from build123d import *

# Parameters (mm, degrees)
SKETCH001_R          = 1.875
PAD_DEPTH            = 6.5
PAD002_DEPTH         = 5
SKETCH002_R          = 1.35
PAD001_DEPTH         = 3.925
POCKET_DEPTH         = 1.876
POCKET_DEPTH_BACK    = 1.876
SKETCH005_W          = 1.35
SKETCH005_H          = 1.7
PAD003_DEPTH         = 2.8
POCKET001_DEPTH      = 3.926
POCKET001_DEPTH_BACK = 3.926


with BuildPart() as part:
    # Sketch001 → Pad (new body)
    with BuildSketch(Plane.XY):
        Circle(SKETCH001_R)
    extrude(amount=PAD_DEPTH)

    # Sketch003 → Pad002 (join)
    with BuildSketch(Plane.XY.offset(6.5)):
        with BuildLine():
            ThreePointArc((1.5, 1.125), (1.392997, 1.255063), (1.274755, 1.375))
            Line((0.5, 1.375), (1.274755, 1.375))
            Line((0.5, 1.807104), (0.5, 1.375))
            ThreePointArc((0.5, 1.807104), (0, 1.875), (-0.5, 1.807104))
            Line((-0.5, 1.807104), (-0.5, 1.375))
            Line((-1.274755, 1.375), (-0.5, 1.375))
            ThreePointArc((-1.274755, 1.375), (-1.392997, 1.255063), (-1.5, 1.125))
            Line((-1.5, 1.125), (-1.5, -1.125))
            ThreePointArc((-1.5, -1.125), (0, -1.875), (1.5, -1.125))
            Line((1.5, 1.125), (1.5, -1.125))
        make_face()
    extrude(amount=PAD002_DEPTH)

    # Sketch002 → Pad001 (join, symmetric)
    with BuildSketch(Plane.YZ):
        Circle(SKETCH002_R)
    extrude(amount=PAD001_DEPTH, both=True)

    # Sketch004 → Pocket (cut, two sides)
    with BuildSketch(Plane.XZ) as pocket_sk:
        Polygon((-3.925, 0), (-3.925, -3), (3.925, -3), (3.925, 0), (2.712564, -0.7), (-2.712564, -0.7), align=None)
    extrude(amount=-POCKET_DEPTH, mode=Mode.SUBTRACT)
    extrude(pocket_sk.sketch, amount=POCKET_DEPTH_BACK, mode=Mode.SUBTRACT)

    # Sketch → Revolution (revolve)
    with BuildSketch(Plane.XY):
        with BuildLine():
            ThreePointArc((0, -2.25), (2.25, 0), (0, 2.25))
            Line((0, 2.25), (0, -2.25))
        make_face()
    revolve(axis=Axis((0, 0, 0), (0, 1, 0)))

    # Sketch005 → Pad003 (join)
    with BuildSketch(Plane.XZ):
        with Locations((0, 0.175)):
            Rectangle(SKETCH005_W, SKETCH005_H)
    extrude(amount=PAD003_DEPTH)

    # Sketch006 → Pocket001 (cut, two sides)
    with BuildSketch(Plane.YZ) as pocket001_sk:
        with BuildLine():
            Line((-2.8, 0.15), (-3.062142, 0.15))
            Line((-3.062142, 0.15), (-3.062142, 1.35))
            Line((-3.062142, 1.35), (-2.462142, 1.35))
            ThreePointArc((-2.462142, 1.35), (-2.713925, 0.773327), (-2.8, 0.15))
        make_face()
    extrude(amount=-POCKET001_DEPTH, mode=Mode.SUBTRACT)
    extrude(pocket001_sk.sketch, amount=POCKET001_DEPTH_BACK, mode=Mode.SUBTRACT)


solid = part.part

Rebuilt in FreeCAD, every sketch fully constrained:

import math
import FreeCAD as App
import Part
import Sketcher
Q = App.Units.Quantity


def add_polygon(sketch, points):
    """Adds a closed chain of lines whose ends are joined by coincident constraints."""
    first, n = sketch.GeometryCount, len(points)
    for a, b in zip(points, points[1:] + points[:1]):
        sketch.addGeometry(Part.LineSegment(App.Vector(*a, 0), App.Vector(*b, 0)), False)
    for i in range(n):
        sketch.addConstraint(Sketcher.Constraint("Coincident", first + i, 2, first + (i + 1) % n, 1))

doc = App.newDocument("Part")
body = doc.addObject("PartDesign::Body", "Body")

# Sketch on XY plane
sketch1 = doc.addObject("Sketcher::SketchObject", "Sketch")
body.addObject(sketch1)
sketch1.AttachmentSupport = (doc.XY_Plane, [""])
sketch1.MapMode = "FlatFace"
sketch1.addGeometry(Part.Circle(App.Vector(0, 0, 0), App.Vector(0, 0, 1), 1.875), False)
sketch1.addConstraint(Sketcher.Constraint("Coincident", 0, 3, -1, 1))
sketch1.addConstraint(Sketcher.Constraint("Diameter", 0, 3.75))
pad1 = doc.addObject("PartDesign::Pad", "Pad")
body.addObject(pad1)
pad1.Profile = sketch1
pad1.Length = 6.5

# Sketch on XY plane
sketch2 = doc.addObject("Sketcher::SketchObject", "Sketch001")
body.addObject(sketch2)
sketch2.AttachmentSupport = (doc.XY_Plane, [""])
sketch2.MapMode = "FlatFace"
sketch2.AttachmentOffset = App.Placement(App.Vector(0, 0, 6.5), App.Rotation())
sketch2.addGeometry(Part.ArcOfCircle(Part.Circle(App.Vector(-0.000068, -0.000061, 0), App.Vector(0, 0, 1), 1.875091), math.radians(36.870134), math.radians(47.166305)), False)
sketch2.addGeometry(Part.LineSegment(App.Vector(1.274755, 1.375, 0), App.Vector(0.5, 1.375, 0)), False)
sketch2.addGeometry(Part.LineSegment(App.Vector(0.5, 1.375, 0), App.Vector(0.5, 1.807104, 0)), False)
sketch2.addGeometry(Part.ArcOfCircle(Part.Circle(App.Vector(0, 0.000001, 0), App.Vector(0, 0, 1), 1.874999), math.radians(74.533982), math.radians(105.466018)), False)
sketch2.addGeometry(Part.LineSegment(App.Vector(-0.5, 1.807104, 0), App.Vector(-0.5, 1.375, 0)), False)
sketch2.addGeometry(Part.LineSegment(App.Vector(-0.5, 1.375, 0), App.Vector(-1.274755, 1.375, 0)), False)
sketch2.addGeometry(Part.ArcOfCircle(Part.Circle(App.Vector(0.000068, -0.000061, 0), App.Vector(0, 0, 1), 1.875091), math.radians(132.833695), math.radians(143.129866)), False)
sketch2.addGeometry(Part.LineSegment(App.Vector(-1.5, 1.125, 0), App.Vector(-1.5, -1.125, 0)), False)
sketch2.addGeometry(Part.ArcOfCircle(Part.Circle(App.Vector(0, 0, 0), App.Vector(0, 0, 1), 1.875), math.radians(-143.130102), math.radians(-36.869898)), False)
sketch2.addGeometry(Part.LineSegment(App.Vector(1.5, -1.125, 0), App.Vector(1.5, 1.125, 0)), False)
sketch2.addConstraint(Sketcher.Constraint("Coincident", 0, 2, 1, 1))
sketch2.addConstraint(Sketcher.Constraint("Coincident", 1, 2, 2, 1))
sketch2.addConstraint(Sketcher.Constraint("Coincident", 2, 2, 3, 1))
sketch2.addConstraint(Sketcher.Constraint("Coincident", 3, 2, 4, 1))
sketch2.addConstraint(Sketcher.Constraint("Coincident", 4, 2, 5, 1))
sketch2.addConstraint(Sketcher.Constraint("Coincident", 5, 2, 6, 1))
sketch2.addConstraint(Sketcher.Constraint("Coincident", 6, 2, 7, 1))
sketch2.addConstraint(Sketcher.Constraint("Coincident", 7, 2, 8, 1))
sketch2.addConstraint(Sketcher.Constraint("Coincident", 8, 2, 9, 1))
sketch2.addConstraint(Sketcher.Constraint("Coincident", 9, 2, 0, 1))
sketch2.addConstraint(Sketcher.Constraint("Horizontal", 1))
sketch2.addConstraint(Sketcher.Constraint("Vertical", 2))
sketch2.addConstraint(Sketcher.Constraint("Vertical", 4))
sketch2.addConstraint(Sketcher.Constraint("Horizontal", 5))
sketch2.addConstraint(Sketcher.Constraint("Vertical", 7))
sketch2.addConstraint(Sketcher.Constraint("Vertical", 9))
sketch2.addConstraint(Sketcher.Constraint("Coincident", 3, 3, -1, 1))
sketch2.addConstraint(Sketcher.Constraint("Coincident", 8, 3, -1, 1))
sketch2.addConstraint(Sketcher.Constraint("Equal", 0, 6))
sketch2.addConstraint(Sketcher.Constraint("Equal", 3, 8))
sketch2.addConstraint(Sketcher.Constraint("Symmetric", 6, 2, 8, 2, -1, 1))
sketch2.addConstraint(Sketcher.Constraint("Symmetric", 0, 3, 6, 3, -2))
sketch2.addConstraint(Sketcher.Constraint("Symmetric", 1, 2, 4, 2, -2))
sketch2.addConstraint(Sketcher.Constraint("Radius", 3, 1.874999))
sketch2.addConstraint(Sketcher.Constraint("DistanceX", 3, 2, 2, 2, 1.0))
sketch2.addConstraint(Sketcher.Constraint("DistanceX", 6, 2, 4, 2, 1.0))
sketch2.addConstraint(Sketcher.Constraint("DistanceY", 8, 2, 0, 2, 2.5))
sketch2.addConstraint(Sketcher.Constraint("Radius", 0, 1.875091))
sketch2.addConstraint(Sketcher.Constraint("DistanceX", 1, 2, 1, 1, 0.774755))
pad2 = doc.addObject("PartDesign::Pad", "Pad001")
body.addObject(pad2)
pad2.Profile = sketch2
pad2.Length = 5

# Sketch on YZ plane
sketch3 = doc.addObject("Sketcher::SketchObject", "Sketch002")
body.addObject(sketch3)
sketch3.AttachmentSupport = (doc.YZ_Plane, [""])
sketch3.MapMode = "FlatFace"
sketch3.addGeometry(Part.Circle(App.Vector(0, 0, 0), App.Vector(0, 0, 1), 1.35), False)
sketch3.addConstraint(Sketcher.Constraint("Coincident", 0, 3, -1, 1))
sketch3.addConstraint(Sketcher.Constraint("Diameter", 0, 2.7))
pad3 = doc.addObject("PartDesign::Pad", "Pad002")
body.addObject(pad3)
pad3.Profile = sketch3
pad3.Length = 7.85
pad3.Midplane = True

# Sketch on XZ plane
sketch4 = doc.addObject("Sketcher::SketchObject", "Sketch003")
body.addObject(sketch4)
sketch4.AttachmentSupport = (doc.XZ_Plane, [""])
sketch4.MapMode = "FlatFace"
add_polygon(sketch4, [(-3.925, 0), (-3.925, -3), (3.925, -3), (3.925, 0), (2.712564, -0.7), (-2.712564, -0.7)])  # lines 0-5
sketch4.addConstraint(Sketcher.Constraint("Vertical", 0))
sketch4.addConstraint(Sketcher.Constraint("Horizontal", 1))
sketch4.addConstraint(Sketcher.Constraint("Vertical", 2))
sketch4.addConstraint(Sketcher.Constraint("Horizontal", 4))
sketch4.addConstraint(Sketcher.Constraint("Symmetric", 2, 2, 5, 2, -1, 1))
sketch4.addConstraint(Sketcher.Constraint("PointOnObject", 2, 2, -1))
sketch4.addConstraint(Sketcher.Constraint("Equal", 3, 5))
sketch4.addConstraint(Sketcher.Constraint("DistanceY", 0, 2, 0, 1, 3.0))
sketch4.addConstraint(Sketcher.Constraint("Angle", 3, Q("-150.000009 deg")))
sketch4.addConstraint(Sketcher.Constraint("Distance", 3, 1.4))
sketch4.addConstraint(Sketcher.Constraint("DistanceX", 1, 1, 1, 2, 7.85))
pocket1 = doc.addObject("PartDesign::Pocket", "Pocket")
body.addObject(pocket1)
pocket1.Profile = sketch4
pocket1.Type = "ThroughAll"
pocket1.Midplane = True

# Sketch on XY plane
sketch5 = doc.addObject("Sketcher::SketchObject", "Sketch004")
body.addObject(sketch5)
sketch5.AttachmentSupport = (doc.XY_Plane, [""])
sketch5.MapMode = "FlatFace"
sketch5.addGeometry(Part.ArcOfCircle(Part.Circle(App.Vector(0, 0, 0), App.Vector(0, 0, 1), 2.25), math.radians(-90), math.radians(90)), False)
sketch5.addGeometry(Part.LineSegment(App.Vector(0, 2.25, 0), App.Vector(0, -2.25, 0)), False)
sketch5.addConstraint(Sketcher.Constraint("Coincident", 0, 1, 1, 2))
sketch5.addConstraint(Sketcher.Constraint("Coincident", 1, 1, 0, 2))
sketch5.addConstraint(Sketcher.Constraint("Vertical", 1))
sketch5.addConstraint(Sketcher.Constraint("Coincident", 0, 3, -1, 1))
sketch5.addConstraint(Sketcher.Constraint("PointOnObject", 0, 1, -2))
sketch5.addConstraint(Sketcher.Constraint("Radius", 0, 2.25))
revolution = doc.addObject("PartDesign::Revolution", "Revolution")
body.addObject(revolution)
revolution.Profile = sketch5
revolution.ReferenceAxis = (sketch5, ["V_Axis"])
revolution.Angle = 360

# Sketch on XZ plane
sketch6 = doc.addObject("Sketcher::SketchObject", "Sketch005")
body.addObject(sketch6)
sketch6.AttachmentSupport = (doc.XZ_Plane, [""])
sketch6.MapMode = "FlatFace"
add_polygon(sketch6, [(-0.675, 1.025), (-0.675, -0.675), (0.675, -0.675), (0.675, 1.025)])  # lines 0-3
sketch6.addConstraint(Sketcher.Constraint("Vertical", 0))
sketch6.addConstraint(Sketcher.Constraint("Horizontal", 1))
sketch6.addConstraint(Sketcher.Constraint("Vertical", 2))
sketch6.addConstraint(Sketcher.Constraint("Horizontal", 3))
sketch6.addConstraint(Sketcher.Constraint("DistanceY", 0, 2, 0, 1, 1.7))
sketch6.addConstraint(Sketcher.Constraint("DistanceX", 1, 1, 1, 2, 1.35))
sketch6.addConstraint(Sketcher.Constraint("DistanceX", 0, 2, -1, 1, 0.675))
sketch6.addConstraint(Sketcher.Constraint("DistanceY", 0, 2, -1, 1, 0.675))
pad4 = doc.addObject("PartDesign::Pad", "Pad003")
body.addObject(pad4)
pad4.Profile = sketch6
pad4.Length = 2.8

# Sketch on YZ plane
sketch7 = doc.addObject("Sketcher::SketchObject", "Sketch006")
body.addObject(sketch7)
sketch7.AttachmentSupport = (doc.YZ_Plane, [""])
sketch7.MapMode = "FlatFace"
sketch7.addGeometry(Part.LineSegment(App.Vector(-3.062142, 0.15, 0), App.Vector(-2.8, 0.15, 0)), False)
sketch7.addGeometry(Part.ArcOfCircle(Part.Circle(App.Vector(-0.499999, 0.15, 0), App.Vector(0, 0, 1), 2.300001), math.radians(148.551041), math.radians(180.000006)), False)
sketch7.addGeometry(Part.LineSegment(App.Vector(-2.462142, 1.35, 0), App.Vector(-3.062142, 1.35, 0)), False)
sketch7.addGeometry(Part.LineSegment(App.Vector(-3.062142, 1.35, 0), App.Vector(-3.062142, 0.15, 0)), False)
sketch7.addConstraint(Sketcher.Constraint("Coincident", 0, 2, 1, 2))
sketch7.addConstraint(Sketcher.Constraint("Coincident", 1, 1, 2, 1))
sketch7.addConstraint(Sketcher.Constraint("Coincident", 2, 2, 3, 1))
sketch7.addConstraint(Sketcher.Constraint("Coincident", 3, 2, 0, 1))
sketch7.addConstraint(Sketcher.Constraint("Horizontal", 0))
sketch7.addConstraint(Sketcher.Constraint("Horizontal", 2))
sketch7.addConstraint(Sketcher.Constraint("Vertical", 3))
sketch7.addConstraint(Sketcher.Constraint("Horizontal", 1, 3, 0, 2))
sketch7.addConstraint(Sketcher.Constraint("Radius", 1, 2.300001))
sketch7.addConstraint(Sketcher.Constraint("DistanceX", 2, 2, 2, 1, 0.6))
sketch7.addConstraint(Sketcher.Constraint("DistanceY", 3, 2, 3, 1, 1.2))
sketch7.addConstraint(Sketcher.Constraint("DistanceX", 1, 3, -1, 1, 0.499999))
sketch7.addConstraint(Sketcher.Constraint("DistanceY", -1, 1, 1, 3, 0.15))
pocket2 = doc.addObject("PartDesign::Pocket", "Pocket001")
body.addObject(pocket2)
pocket2.Profile = sketch7
pocket2.Type = "ThroughAll"
pocket2.Midplane = True

doc.recompute()
